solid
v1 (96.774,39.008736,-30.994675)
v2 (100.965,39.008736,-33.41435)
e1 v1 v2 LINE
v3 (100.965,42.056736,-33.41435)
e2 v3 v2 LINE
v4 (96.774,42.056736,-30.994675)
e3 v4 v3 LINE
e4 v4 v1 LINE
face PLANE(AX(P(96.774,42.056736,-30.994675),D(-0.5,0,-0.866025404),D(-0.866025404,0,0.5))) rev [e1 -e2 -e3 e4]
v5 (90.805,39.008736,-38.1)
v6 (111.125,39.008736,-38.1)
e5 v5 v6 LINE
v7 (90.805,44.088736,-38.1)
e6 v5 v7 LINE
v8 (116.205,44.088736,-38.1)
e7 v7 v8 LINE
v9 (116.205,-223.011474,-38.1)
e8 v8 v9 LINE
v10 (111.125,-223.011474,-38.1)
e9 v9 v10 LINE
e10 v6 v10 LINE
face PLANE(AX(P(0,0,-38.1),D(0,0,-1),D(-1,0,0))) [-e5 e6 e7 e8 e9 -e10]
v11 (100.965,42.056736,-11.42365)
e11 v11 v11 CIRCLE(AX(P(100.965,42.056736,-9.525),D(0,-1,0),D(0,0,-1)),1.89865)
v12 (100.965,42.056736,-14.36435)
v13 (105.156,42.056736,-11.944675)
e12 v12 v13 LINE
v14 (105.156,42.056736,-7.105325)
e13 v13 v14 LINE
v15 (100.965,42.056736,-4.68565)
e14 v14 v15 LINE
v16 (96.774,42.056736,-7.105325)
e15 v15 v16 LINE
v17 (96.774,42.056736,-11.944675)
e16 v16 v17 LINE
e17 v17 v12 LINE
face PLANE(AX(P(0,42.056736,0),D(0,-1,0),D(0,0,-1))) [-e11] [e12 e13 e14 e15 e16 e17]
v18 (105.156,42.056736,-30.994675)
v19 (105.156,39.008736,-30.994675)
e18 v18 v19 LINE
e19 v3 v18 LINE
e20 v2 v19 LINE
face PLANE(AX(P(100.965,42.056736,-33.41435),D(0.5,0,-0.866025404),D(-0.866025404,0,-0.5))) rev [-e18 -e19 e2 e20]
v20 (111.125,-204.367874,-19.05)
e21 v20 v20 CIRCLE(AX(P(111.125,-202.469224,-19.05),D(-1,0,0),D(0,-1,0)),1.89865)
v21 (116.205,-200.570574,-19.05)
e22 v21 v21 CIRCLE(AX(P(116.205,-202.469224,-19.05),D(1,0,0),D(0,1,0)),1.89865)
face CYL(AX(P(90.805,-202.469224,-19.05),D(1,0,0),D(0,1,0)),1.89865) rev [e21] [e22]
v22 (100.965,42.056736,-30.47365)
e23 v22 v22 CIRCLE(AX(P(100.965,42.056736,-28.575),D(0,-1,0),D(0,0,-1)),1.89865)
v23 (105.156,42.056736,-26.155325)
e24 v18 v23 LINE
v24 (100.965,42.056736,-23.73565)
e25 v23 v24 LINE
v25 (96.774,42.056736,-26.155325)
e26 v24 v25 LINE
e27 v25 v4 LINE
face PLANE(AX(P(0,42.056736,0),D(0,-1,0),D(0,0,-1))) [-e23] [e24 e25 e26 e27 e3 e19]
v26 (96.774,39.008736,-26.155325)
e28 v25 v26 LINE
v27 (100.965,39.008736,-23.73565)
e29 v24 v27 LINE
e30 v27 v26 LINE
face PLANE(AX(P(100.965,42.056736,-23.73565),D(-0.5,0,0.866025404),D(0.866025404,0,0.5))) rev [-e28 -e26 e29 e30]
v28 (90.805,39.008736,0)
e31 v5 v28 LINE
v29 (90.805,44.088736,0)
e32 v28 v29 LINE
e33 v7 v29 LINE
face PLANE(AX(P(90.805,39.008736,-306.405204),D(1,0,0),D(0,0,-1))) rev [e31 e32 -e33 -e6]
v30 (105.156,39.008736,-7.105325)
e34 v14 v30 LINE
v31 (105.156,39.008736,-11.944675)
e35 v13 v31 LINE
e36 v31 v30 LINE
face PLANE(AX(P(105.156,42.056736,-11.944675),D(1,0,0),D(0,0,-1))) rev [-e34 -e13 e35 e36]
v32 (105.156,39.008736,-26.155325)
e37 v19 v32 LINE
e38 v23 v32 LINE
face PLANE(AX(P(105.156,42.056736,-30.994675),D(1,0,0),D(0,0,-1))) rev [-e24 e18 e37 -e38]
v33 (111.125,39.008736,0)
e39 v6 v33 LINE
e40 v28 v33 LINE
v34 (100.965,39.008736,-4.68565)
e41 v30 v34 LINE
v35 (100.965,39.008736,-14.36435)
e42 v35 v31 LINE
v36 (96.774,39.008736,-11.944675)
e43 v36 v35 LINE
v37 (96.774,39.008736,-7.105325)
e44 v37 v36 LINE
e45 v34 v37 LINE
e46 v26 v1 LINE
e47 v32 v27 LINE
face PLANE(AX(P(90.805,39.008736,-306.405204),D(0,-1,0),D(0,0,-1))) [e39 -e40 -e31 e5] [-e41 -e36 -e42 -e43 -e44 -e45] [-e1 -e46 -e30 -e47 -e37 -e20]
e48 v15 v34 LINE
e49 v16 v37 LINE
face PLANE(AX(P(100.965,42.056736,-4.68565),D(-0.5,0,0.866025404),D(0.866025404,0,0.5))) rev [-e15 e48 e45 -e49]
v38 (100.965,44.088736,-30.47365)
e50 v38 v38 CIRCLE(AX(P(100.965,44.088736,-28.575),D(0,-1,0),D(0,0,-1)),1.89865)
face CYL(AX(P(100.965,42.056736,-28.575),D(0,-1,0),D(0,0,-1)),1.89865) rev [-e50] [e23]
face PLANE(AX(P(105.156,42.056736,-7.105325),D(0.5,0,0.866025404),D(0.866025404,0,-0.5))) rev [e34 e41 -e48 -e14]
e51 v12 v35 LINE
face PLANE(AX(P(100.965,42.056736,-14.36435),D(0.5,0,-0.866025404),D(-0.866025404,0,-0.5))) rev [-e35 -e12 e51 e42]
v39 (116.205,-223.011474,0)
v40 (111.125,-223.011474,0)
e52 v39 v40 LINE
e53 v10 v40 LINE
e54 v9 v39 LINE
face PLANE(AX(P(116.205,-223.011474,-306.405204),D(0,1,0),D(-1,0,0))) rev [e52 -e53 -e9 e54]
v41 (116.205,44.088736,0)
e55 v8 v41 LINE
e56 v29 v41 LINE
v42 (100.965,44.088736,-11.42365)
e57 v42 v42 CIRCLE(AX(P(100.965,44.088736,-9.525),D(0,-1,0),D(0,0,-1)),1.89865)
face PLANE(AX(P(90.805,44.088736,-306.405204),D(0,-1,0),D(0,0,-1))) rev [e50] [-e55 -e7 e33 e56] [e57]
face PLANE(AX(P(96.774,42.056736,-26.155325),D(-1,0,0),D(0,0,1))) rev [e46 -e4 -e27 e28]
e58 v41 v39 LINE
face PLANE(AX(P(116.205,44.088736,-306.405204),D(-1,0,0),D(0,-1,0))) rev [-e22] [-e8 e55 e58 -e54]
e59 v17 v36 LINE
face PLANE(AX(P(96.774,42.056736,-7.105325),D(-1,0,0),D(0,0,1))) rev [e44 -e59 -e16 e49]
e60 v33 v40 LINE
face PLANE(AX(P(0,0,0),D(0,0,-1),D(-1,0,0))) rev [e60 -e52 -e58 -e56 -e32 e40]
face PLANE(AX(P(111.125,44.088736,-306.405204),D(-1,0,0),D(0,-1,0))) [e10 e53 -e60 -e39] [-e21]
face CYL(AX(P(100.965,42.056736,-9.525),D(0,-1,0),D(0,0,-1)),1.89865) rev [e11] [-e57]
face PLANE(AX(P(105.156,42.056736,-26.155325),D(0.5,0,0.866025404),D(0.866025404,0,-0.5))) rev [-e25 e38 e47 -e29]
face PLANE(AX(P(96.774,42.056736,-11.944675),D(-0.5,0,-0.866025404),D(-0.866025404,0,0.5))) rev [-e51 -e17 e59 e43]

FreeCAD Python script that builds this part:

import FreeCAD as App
import Part
import Sketcher
Q = App.Units.Quantity


def add_polygon(sketch, points):
    """Adds a closed chain of lines whose ends are joined by coincident constraints."""
    first, n = sketch.GeometryCount, len(points)
    for a, b in zip(points, points[1:] + points[:1]):
        sketch.addGeometry(Part.LineSegment(App.Vector(*a, 0), App.Vector(*b, 0)), False)
    for i in range(n):
        sketch.addConstraint(Sketcher.Constraint("Coincident", first + i, 2, first + (i + 1) % n, 1))

doc = App.newDocument("Part")
body = doc.addObject("PartDesign::Body", "Body")

sketch1 = body.newObject("Sketcher::SketchObject", "Sketch")
sketch1.AttachmentSupport = (doc.getObject("XY_Plane"), [""])
sketch1.MapMode = "FlatFace"
add_polygon(sketch1, [(116, 44), (91, 44), (91, 39), (111, 39), (111, -223), (116, -223)])
sketch1.addConstraint(Sketcher.Constraint("Horizontal", 0))
sketch1.addConstraint(Sketcher.Constraint("Vertical", 1))
sketch1.addConstraint(Sketcher.Constraint("Horizontal", 2))
sketch1.addConstraint(Sketcher.Constraint("Vertical", 3))
sketch1.addConstraint(Sketcher.Constraint("Horizontal", 4))
sketch1.addConstraint(Sketcher.Constraint("Vertical", 5))
sketch1.addConstraint(Sketcher.Constraint("Equal", 4, 1))
sketch1.addConstraint(Sketcher.Constraint("DistanceX", 0, 2, 0, 1, Q("1 in")))
sketch1.addConstraint(Sketcher.Constraint("DistanceX", 2, 1, 2, 2, Q("0.8 in")))
sketch1.addConstraint(Sketcher.Constraint("DistanceX", -1, 1, 0, 2, Q("3.575 in")))
sketch1.addConstraint(Sketcher.Constraint("DistanceY", 3, 2, 3, 1, Q("262.02021 mm")))
sketch1.addConstraint(Sketcher.Constraint("DistanceY", -1, 1, 0, 2, Q("44.088736 mm")))
pad1 = body.newObject("PartDesign::Pad", "Pad")
pad1.Profile = sketch1
pad1.Length = Q("1.5 in")
pad1.Reversed = True

sketch2 = body.newObject("Sketcher::SketchObject", "Sketch001")
sketch2.AttachmentSupport = (doc.getObject("YZ_Plane"), [""])
sketch2.MapMode = "FlatFace"
sketch2.AttachmentOffset = App.Placement(App.Vector(0, 0, 4.575 * 25.4), App.Rotation())
sketch2.addGeometry(Part.Circle(App.Vector(-202.5, -19.1, 0), App.Vector(0, 0, 1), 1.9), False)
sketch2.addConstraint(Sketcher.Constraint("Diameter", 0, Q("0.1495 in")))
sketch2.addConstraint(Sketcher.Constraint("DistanceY", 0, 3, -1, 1, Q("0.75 in")))
sketch2.addConstraint(Sketcher.Constraint("DistanceX", 0, 3, -1, 1, Q("202.469224 mm")))
pocket1 = body.newObject("PartDesign::Pocket", "Pocket")
pocket1.Profile = sketch2
pocket1.Type = "ThroughAll"

sketch3 = body.newObject("Sketcher::SketchObject", "Sketch002")
sketch3.AttachmentSupport = (doc.getObject("XZ_Plane"), [""])
sketch3.MapMode = "FlatFace"
sketch3.AttachmentOffset = App.Placement(App.Vector(0, 0, -39.008736), App.Rotation())
add_polygon(sketch3, [(101, -23.7), (96.8, -26.2), (96.8, -31), (101, -33.4), (105.2, -31), (105.2, -26.2)])
add_polygon(sketch3, [(101, -4.7), (96.8, -7.1), (96.8, -11.9), (101, -14.4), (105.2, -11.9), (105.2, -7.1)])
sketch3.addConstraint(Sketcher.Constraint("Vertical", 1))
sketch3.addConstraint(Sketcher.Constraint("Vertical", 4))
sketch3.addConstraint(Sketcher.Constraint("Vertical", 7))
sketch3.addConstraint(Sketcher.Constraint("Vertical", 10))
sketch3.addConstraint(Sketcher.Constraint("Parallel", 0, 3))
sketch3.addConstraint(Sketcher.Constraint("Parallel", 2, 5))
sketch3.addConstraint(Sketcher.Constraint("Parallel", 3, 6))
sketch3.addConstraint(Sketcher.Constraint("Parallel", 5, 8))
sketch3.addConstraint(Sketcher.Constraint("Parallel", 6, 9))
sketch3.addConstraint(Sketcher.Constraint("Parallel", 8, 11))
sketch3.addConstraint(Sketcher.Constraint("Horizontal", 1, 2, 3, 2))
sketch3.addConstraint(Sketcher.Constraint("Horizontal", 0, 2, 4, 2))
sketch3.addConstraint(Sketcher.Constraint("Horizontal", 7, 2, 9, 2))
sketch3.addConstraint(Sketcher.Constraint("Horizontal", 6, 2, 10, 2))
sketch3.addConstraint(Sketcher.Constraint("Vertical", 2, 2, 5, 2))
sketch3.addConstraint(Sketcher.Constraint("Vertical", 1, 2, 6, 2))
sketch3.addConstraint(Sketcher.Constraint("Vertical", 5, 2, 8, 2))
sketch3.addConstraint(Sketcher.Constraint("Equal", 4, 7))
sketch3.addConstraint(Sketcher.Constraint("Angle", 0, Q("-150 deg")))
sketch3.addConstraint(Sketcher.Constraint("DistanceX", -1, 1, 0, 2, Q("3.81 in")))
sketch3.addConstraint(Sketcher.Constraint("DistanceX", -1, 1, 3, 2, Q("4.14 in")))
sketch3.addConstraint(Sketcher.Constraint("DistanceY", 0, 2, 6, 2, Q("0.75 in")))
sketch3.addConstraint(Sketcher.Constraint("DistanceY", 1, 2, 1, 1, Q("4.83935 mm")))
sketch3.addConstraint(Sketcher.Constraint("DistanceY", 2, 2, -1, 1, Q("33.41435 mm")))
pocket2 = body.newObject("PartDesign::Pocket", "Pocket001")
pocket2.Profile = sketch3
pocket2.Length = Q("0.12 in")

sketch4 = body.newObject("Sketcher::SketchObject", "Sketch003")
sketch4.AttachmentSupport = (doc.getObject("XZ_Plane"), [""])
sketch4.MapMode = "FlatFace"
sketch4.AttachmentOffset = App.Placement(App.Vector(0, 0, -42.056736), App.Rotation())
sketch4.addGeometry(Part.Circle(App.Vector(101, -28.6, 0), App.Vector(0, 0, 1), 1.9), False)
sketch4.addGeometry(Part.Circle(App.Vector(101, -9.5, 0), App.Vector(0, 0, 1), 1.9), False)
sketch4.addConstraint(Sketcher.Constraint("Equal", 0, 1))
sketch4.addConstraint(Sketcher.Constraint("Vertical", 0, 3, 1, 3))
sketch4.addConstraint(Sketcher.Constraint("Diameter", 0, Q("0.1495 in")))
sketch4.addConstraint(Sketcher.Constraint("DistanceY", 0, 3, 1, 3, Q("0.75 in")))
sketch4.addConstraint(Sketcher.Constraint("DistanceX", -1, 1, 0, 3, Q("3.975 in")))
sketch4.addConstraint(Sketcher.Constraint("DistanceY", 0, 3, -1, 1, Q("1.125 in")))
doc.recompute()
hole = body.newObject("PartDesign::Hole", "Hole")
hole.Profile = sketch4
hole.ThreadType = "None"
hole.Diameter = Q("0.1495 in")
hole.DepthType = "ThroughAll"

doc.recompute()
